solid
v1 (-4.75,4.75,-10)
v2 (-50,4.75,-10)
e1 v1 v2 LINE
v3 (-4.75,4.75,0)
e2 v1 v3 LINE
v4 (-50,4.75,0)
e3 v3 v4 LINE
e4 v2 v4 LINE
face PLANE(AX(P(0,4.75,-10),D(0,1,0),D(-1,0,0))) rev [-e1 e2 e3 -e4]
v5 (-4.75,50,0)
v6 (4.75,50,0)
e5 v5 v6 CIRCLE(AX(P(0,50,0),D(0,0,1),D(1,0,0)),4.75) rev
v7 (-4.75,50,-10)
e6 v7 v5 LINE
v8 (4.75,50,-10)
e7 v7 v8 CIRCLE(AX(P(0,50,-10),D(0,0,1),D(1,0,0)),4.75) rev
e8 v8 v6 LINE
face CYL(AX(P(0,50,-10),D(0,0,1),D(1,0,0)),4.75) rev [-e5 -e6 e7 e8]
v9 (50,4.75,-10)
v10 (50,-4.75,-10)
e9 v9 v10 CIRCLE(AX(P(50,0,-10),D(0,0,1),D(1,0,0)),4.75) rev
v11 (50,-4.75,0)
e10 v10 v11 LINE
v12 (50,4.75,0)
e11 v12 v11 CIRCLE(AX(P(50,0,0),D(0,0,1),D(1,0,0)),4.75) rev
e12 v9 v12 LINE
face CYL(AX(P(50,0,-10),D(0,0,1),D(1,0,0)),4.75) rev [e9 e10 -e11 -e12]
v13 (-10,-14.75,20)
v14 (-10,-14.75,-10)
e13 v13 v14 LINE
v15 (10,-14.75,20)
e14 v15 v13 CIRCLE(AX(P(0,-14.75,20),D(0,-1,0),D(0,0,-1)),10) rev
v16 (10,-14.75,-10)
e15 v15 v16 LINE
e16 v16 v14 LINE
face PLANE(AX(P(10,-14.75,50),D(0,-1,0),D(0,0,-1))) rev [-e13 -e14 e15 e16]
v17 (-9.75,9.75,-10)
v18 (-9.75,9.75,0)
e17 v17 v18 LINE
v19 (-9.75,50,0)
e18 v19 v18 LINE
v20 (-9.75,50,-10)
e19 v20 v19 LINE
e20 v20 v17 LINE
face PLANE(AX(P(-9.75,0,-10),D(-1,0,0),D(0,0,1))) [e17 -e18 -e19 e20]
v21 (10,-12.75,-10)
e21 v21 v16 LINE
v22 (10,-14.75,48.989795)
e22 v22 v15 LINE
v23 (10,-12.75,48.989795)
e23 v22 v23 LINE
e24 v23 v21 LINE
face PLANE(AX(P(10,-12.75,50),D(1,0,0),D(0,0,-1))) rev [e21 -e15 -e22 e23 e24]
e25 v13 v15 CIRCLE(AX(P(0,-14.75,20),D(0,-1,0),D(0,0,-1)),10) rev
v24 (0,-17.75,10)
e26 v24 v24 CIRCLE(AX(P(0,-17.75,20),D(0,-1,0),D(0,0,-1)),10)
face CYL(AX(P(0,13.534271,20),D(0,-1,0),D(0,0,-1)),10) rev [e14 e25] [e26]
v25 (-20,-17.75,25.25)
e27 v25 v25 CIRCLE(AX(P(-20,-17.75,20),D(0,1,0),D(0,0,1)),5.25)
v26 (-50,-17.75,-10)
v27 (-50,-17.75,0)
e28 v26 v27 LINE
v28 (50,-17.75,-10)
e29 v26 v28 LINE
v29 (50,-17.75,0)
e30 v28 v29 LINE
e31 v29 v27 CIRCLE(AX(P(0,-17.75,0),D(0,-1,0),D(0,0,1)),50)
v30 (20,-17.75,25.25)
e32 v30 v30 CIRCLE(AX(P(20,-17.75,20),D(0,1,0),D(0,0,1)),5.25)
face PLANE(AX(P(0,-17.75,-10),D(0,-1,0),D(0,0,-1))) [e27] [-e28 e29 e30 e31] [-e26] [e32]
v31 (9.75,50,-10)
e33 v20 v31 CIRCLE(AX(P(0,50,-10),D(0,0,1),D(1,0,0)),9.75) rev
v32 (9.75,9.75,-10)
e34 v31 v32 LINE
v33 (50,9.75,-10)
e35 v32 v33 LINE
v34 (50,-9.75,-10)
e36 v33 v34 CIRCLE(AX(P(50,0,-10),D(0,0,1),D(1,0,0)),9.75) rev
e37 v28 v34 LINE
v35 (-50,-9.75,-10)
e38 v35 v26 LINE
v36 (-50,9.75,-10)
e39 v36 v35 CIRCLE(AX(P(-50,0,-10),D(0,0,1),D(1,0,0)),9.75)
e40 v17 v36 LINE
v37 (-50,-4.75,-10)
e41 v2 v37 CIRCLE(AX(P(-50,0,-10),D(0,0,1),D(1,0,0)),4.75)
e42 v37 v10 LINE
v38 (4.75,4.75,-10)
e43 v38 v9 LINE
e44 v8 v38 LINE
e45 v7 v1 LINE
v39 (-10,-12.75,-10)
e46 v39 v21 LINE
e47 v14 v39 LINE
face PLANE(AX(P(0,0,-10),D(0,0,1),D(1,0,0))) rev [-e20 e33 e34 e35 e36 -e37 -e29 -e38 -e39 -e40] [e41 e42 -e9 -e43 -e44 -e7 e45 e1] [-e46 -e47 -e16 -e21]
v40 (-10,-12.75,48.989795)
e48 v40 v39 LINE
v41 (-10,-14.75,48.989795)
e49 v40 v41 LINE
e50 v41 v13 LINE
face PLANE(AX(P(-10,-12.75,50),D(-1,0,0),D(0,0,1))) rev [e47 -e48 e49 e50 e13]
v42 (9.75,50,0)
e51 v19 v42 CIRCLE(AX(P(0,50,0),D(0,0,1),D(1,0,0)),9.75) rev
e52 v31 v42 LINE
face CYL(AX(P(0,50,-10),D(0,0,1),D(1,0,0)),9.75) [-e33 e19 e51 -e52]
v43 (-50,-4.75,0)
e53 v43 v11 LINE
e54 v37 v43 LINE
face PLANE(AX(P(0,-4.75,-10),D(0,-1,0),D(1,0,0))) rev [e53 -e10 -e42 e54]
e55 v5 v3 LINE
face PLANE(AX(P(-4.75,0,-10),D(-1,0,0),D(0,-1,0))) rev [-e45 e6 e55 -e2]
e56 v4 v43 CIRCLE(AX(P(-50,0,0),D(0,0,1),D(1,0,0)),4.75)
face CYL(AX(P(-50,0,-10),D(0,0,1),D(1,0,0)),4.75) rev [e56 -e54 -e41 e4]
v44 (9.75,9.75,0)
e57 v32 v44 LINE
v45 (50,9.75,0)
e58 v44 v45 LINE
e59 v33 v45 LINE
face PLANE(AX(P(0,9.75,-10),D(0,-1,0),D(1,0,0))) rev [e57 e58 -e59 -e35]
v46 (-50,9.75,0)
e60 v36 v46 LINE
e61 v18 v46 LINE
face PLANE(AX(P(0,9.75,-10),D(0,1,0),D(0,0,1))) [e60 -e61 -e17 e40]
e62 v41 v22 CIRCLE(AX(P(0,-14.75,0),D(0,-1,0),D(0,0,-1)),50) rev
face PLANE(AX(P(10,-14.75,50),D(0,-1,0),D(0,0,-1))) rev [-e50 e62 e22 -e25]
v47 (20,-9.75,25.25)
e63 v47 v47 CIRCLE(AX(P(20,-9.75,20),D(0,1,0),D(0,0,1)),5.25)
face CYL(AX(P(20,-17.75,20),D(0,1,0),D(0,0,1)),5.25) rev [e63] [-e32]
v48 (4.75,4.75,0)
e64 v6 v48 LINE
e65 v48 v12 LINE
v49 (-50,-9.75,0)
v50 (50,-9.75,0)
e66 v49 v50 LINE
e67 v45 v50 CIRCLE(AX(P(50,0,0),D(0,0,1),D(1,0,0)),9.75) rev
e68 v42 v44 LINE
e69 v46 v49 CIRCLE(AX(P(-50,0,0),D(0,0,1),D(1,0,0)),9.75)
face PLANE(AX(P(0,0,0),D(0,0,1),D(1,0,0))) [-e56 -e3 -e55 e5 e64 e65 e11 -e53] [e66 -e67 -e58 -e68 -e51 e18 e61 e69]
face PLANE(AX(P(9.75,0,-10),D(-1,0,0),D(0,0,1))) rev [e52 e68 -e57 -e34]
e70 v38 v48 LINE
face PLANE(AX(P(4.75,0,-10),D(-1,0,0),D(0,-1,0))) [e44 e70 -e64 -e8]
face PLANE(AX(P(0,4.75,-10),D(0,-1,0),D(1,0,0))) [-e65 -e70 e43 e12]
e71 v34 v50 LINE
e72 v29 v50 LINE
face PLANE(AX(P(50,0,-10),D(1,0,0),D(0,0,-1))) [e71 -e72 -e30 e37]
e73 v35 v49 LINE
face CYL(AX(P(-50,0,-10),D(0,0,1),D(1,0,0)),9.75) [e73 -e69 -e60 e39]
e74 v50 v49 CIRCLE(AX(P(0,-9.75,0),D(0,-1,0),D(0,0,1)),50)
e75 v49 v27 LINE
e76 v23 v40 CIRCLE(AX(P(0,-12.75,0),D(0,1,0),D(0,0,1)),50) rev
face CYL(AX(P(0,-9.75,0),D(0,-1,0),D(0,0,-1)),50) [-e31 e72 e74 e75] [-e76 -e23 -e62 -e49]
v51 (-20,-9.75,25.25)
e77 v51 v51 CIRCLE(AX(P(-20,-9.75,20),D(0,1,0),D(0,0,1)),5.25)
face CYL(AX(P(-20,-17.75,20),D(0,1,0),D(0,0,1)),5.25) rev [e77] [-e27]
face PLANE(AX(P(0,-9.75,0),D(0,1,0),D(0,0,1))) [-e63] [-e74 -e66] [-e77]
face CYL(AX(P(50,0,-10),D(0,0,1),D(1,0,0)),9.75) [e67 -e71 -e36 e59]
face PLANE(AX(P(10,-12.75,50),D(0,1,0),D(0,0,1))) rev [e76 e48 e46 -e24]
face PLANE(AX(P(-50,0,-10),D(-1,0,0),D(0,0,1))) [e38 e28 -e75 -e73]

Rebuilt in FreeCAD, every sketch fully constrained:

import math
import FreeCAD as App
import Part
import Sketcher
from FreeCAD import Vector

doc = App.newDocument("Part")
body = doc.addObject("PartDesign::Body", "Body")

# Sketch on XY plane
sketch1 = doc.addObject("Sketcher::SketchObject", "Sketch")
body.addObject(sketch1)
sketch1.AttachmentSupport = (doc.XY_Plane, [""])
sketch1.MapMode = "FlatFace"
sketch1.addGeometry(Part.ArcOfCircle(Part.Circle(Vector(0, 50, 0), Vector(0, 0, 1), 9.8), math.radians(0), math.radians(180)), False)
sketch1.addGeometry(Part.LineSegment(Vector(-9.8, 50, 0), Vector(-9.8, 9.8, 0)), False)
sketch1.addGeometry(Part.LineSegment(Vector(-9.8, 9.8, 0), Vector(-50, 9.8, 0)), False)
sketch1.addGeometry(Part.ArcOfCircle(Part.Circle(Vector(-50, 0, 0), Vector(0, 0, 1), 9.8), math.radians(90), math.radians(270)), False)
sketch1.addGeometry(Part.LineSegment(Vector(-50, -9.8, 0), Vector(-50, -17.8, 0)), False)
sketch1.addGeometry(Part.LineSegment(Vector(-50, -17.8, 0), Vector(50, -17.8, 0)), False)
sketch1.addGeometry(Part.LineSegment(Vector(50, -17.8, 0), Vector(50, -9.8, 0)), False)
sketch1.addGeometry(Part.ArcOfCircle(Part.Circle(Vector(50, 0, 0), Vector(0, 0, 1), 9.8), math.radians(-90), math.radians(90)), False)
sketch1.addGeometry(Part.LineSegment(Vector(50, 9.8, 0), Vector(9.8, 9.8, 0)), False)
sketch1.addGeometry(Part.LineSegment(Vector(9.8, 9.8, 0), Vector(9.8, 50, 0)), False)
sketch1.addGeometry(Part.LineSegment(Vector(4.8, 4.8, 0), Vector(50, 4.8, 0)), False)
sketch1.addGeometry(Part.ArcOfCircle(Part.Circle(Vector(50, 0, 0), Vector(0, 0, 1), 4.8), math.radians(-90), math.radians(90)), False)
sketch1.addGeometry(Part.LineSegment(Vector(50, -4.8, 0), Vector(-50, -4.8, 0)), False)
sketch1.addGeometry(Part.ArcOfCircle(Part.Circle(Vector(-50, 0, 0), Vector(0, 0, 1), 4.8), math.radians(90), math.radians(270)), False)
sketch1.addGeometry(Part.LineSegment(Vector(-50, 4.8, 0), Vector(-4.8, 4.8, 0)), False)
sketch1.addGeometry(Part.LineSegment(Vector(-4.8, 4.8, 0), Vector(-4.8, 50, 0)), False)
sketch1.addGeometry(Part.ArcOfCircle(Part.Circle(Vector(0, 50, 0), Vector(0, 0, 1), 4.8), math.radians(0), math.radians(180)), False)
sketch1.addGeometry(Part.LineSegment(Vector(4.8, 50, 0), Vector(4.8, 4.8, 0)), False)
sketch1.addConstraint(Sketcher.Constraint("Tangent", 0, 2, 1, 1))
sketch1.addConstraint(Sketcher.Constraint("Coincident", 1, 2, 2, 1))
sketch1.addConstraint(Sketcher.Constraint("Tangent", 2, 2, 3, 1))
sketch1.addConstraint(Sketcher.Constraint("Coincident", 3, 2, 4, 1))
sketch1.addConstraint(Sketcher.Constraint("Coincident", 4, 2, 5, 1))
sketch1.addConstraint(Sketcher.Constraint("Coincident", 5, 2, 6, 1))
sketch1.addConstraint(Sketcher.Constraint("Coincident", 6, 2, 7, 1))
sketch1.addConstraint(Sketcher.Constraint("Tangent", 7, 2, 8, 1))
sketch1.addConstraint(Sketcher.Constraint("Coincident", 8, 2, 9, 1))
sketch1.addConstraint(Sketcher.Constraint("Tangent", 9, 2, 0, 1))
sketch1.addConstraint(Sketcher.Constraint("Tangent", 10, 2, 11, 2))
sketch1.addConstraint(Sketcher.Constraint("Tangent", 11, 1, 12, 1))
sketch1.addConstraint(Sketcher.Constraint("Tangent", 12, 2, 13, 2))
sketch1.addConstraint(Sketcher.Constraint("Tangent", 13, 1, 14, 1))
sketch1.addConstraint(Sketcher.Constraint("Coincident", 14, 2, 15, 1))
sketch1.addConstraint(Sketcher.Constraint("Tangent", 15, 2, 16, 2))
sketch1.addConstraint(Sketcher.Constraint("Tangent", 16, 1, 17, 1))
sketch1.addConstraint(Sketcher.Constraint("Coincident", 17, 2, 10, 1))
sketch1.addConstraint(Sketcher.Constraint("Vertical", 1))
sketch1.addConstraint(Sketcher.Constraint("Horizontal", 2))
sketch1.addConstraint(Sketcher.Constraint("Vertical", 4))
sketch1.addConstraint(Sketcher.Constraint("Horizontal", 5))
sketch1.addConstraint(Sketcher.Constraint("Vertical", 6))
sketch1.addConstraint(Sketcher.Constraint("Horizontal", 8))
sketch1.addConstraint(Sketcher.Constraint("Vertical", 9))
sketch1.addConstraint(Sketcher.Constraint("Horizontal", 10))
sketch1.addConstraint(Sketcher.Constraint("Horizontal", 12))
sketch1.addConstraint(Sketcher.Constraint("Horizontal", 14))
sketch1.addConstraint(Sketcher.Constraint("Vertical", 15))
sketch1.addConstraint(Sketcher.Constraint("Vertical", 17))
sketch1.addConstraint(Sketcher.Constraint("Coincident", 11, 3, 7, 3))
sketch1.addConstraint(Sketcher.Constraint("Coincident", 13, 3, 3, 3))
sketch1.addConstraint(Sketcher.Constraint("Coincident", 16, 3, 0, 3))
sketch1.addConstraint(Sketcher.Constraint("Equal", 0, 3))
sketch1.addConstraint(Sketcher.Constraint("Equal", 3, 7))
sketch1.addConstraint(Sketcher.Constraint("Equal", 11, 13))
sketch1.addConstraint(Sketcher.Constraint("Equal", 13, 16))
sketch1.addConstraint(Sketcher.Constraint("Symmetric", 3, 3, 7, 3, -1, 1))
sketch1.addConstraint(Sketcher.Constraint("PointOnObject", 0, 3, -2))
sketch1.addConstraint(Sketcher.Constraint("Vertical", 2, 2, 3, 2))
sketch1.addConstraint(Sketcher.Constraint("Vertical", 11, 3, 5, 2))
sketch1.addConstraint(Sketcher.Constraint("Equal", 8, 1))
sketch1.addConstraint(Sketcher.Constraint("DistanceX", 5, 1, 5, 2, 100.0))
sketch1.addConstraint(Sketcher.Constraint("DistanceY", 4, 2, 4, 1, 8.0))
sketch1.addConstraint(Sketcher.Constraint("Radius", 0, 9.75))
sketch1.addConstraint(Sketcher.Constraint("Radius", 11, 4.75))
pad1 = doc.addObject("PartDesign::Pad", "Pad")
body.addObject(pad1)
pad1.Profile = sketch1
pad1.Length = 10
pad1.Reversed = True

# Sketch on XZ plane
sketch2 = doc.addObject("Sketcher::SketchObject", "Sketch001")
body.addObject(sketch2)
sketch2.AttachmentSupport = (doc.XZ_Plane, [""])
sketch2.MapMode = "FlatFace"
sketch2.AttachmentOffset = App.Placement(Vector(0, 0, 17.75), App.Rotation())
sketch2.addGeometry(Part.LineSegment(Vector(-50, 0, 0), Vector(50, 0, 0)), False)
sketch2.addGeometry(Part.ArcOfCircle(Part.Circle(Vector(0, 0, 0), Vector(0, 0, 1), 50), math.radians(0), math.radians(180)), False)
sketch2.addConstraint(Sketcher.Constraint("Coincident", 0, 1, 1, 2))
sketch2.addConstraint(Sketcher.Constraint("Coincident", 1, 1, 0, 2))
sketch2.addConstraint(Sketcher.Constraint("Horizontal", 0))
sketch2.addConstraint(Sketcher.Constraint("Coincident", 1, 3, -1, 1))
sketch2.addConstraint(Sketcher.Constraint("PointOnObject", 0, 1, -1))
sketch2.addConstraint(Sketcher.Constraint("Radius", 1, 50.0))
pad2 = doc.addObject("PartDesign::Pad", "Pad001")
body.addObject(pad2)
pad2.Profile = sketch2
pad2.Length = 8
pad2.Reversed = True

# Sketch on XZ plane
sketch3 = doc.addObject("Sketcher::SketchObject", "Sketch002")
body.addObject(sketch3)
sketch3.AttachmentSupport = (doc.XZ_Plane, [""])
sketch3.MapMode = "FlatFace"
sketch3.AttachmentOffset = App.Placement(Vector(0, 0, 9.75), App.Rotation())
sketch3.addGeometry(Part.Circle(Vector(20, 20, 0), Vector(0, 0, 1), 5), False)
sketch3.addGeometry(Part.Circle(Vector(-20, 20, 0), Vector(0, 0, 1), 5), False)
sketch3.addConstraint(Sketcher.Constraint("Equal", 0, 1))
sketch3.addConstraint(Sketcher.Constraint("Symmetric", 0, 3, 1, 3, -2))
sketch3.addConstraint(Sketcher.Constraint("Diameter", 0, 10.5))
sketch3.addConstraint(Sketcher.Constraint("DistanceX", -1, 1, 0, 3, 20.0))
sketch3.addConstraint(Sketcher.Constraint("DistanceY", -1, 1, 0, 3, 20.0))
pocket1 = doc.addObject("PartDesign::Pocket", "Pocket")
body.addObject(pocket1)
pocket1.Profile = sketch3
pocket1.Type = "ThroughAll"
pocket1.Reversed = True

# Sketch on XY plane
sketch4 = doc.addObject("Sketcher::SketchObject", "Sketch003")
body.addObject(sketch4)
sketch4.AttachmentSupport = (doc.XY_Plane, [""])
sketch4.MapMode = "FlatFace"
sketch4.AttachmentOffset = App.Placement(Vector(0, 0, -10), App.Rotation())
sketch4.addGeometry(Part.LineSegment(Vector(10, -12.8, 0), Vector(10, -14.8, 0)), False)
sketch4.addGeometry(Part.LineSegment(Vector(10, -14.8, 0), Vector(-10, -14.8, 0)), False)
sketch4.addGeometry(Part.LineSegment(Vector(-10, -14.8, 0), Vector(-10, -12.8, 0)), False)
sketch4.addGeometry(Part.LineSegment(Vector(-10, -12.8, 0), Vector(10, -12.8, 0)), False)
sketch4.addConstraint(Sketcher.Constraint("Coincident", 0, 2, 1, 1))
sketch4.addConstraint(Sketcher.Constraint("Coincident", 1, 2, 2, 1))
sketch4.addConstraint(Sketcher.Constraint("Coincident", 2, 2, 3, 1))
sketch4.addConstraint(Sketcher.Constraint("Coincident", 3, 2, 0, 1))
sketch4.addConstraint(Sketcher.Constraint("Vertical", 0))
sketch4.addConstraint(Sketcher.Constraint("Horizontal", 1))
sketch4.addConstraint(Sketcher.Constraint("Vertical", 2))
sketch4.addConstraint(Sketcher.Constraint("Horizontal", 3))
sketch4.addConstraint(Sketcher.Constraint("DistanceX", 1, 2, 1, 1, 20.0))
sketch4.addConstraint(Sketcher.Constraint("DistanceY", 0, 2, 0, 1, 2.0))
sketch4.addConstraint(Sketcher.Constraint("DistanceX", -1, 1, 0, 2, 10.0))
sketch4.addConstraint(Sketcher.Constraint("DistanceY", 0, 2, -1, 1, 14.75))
pocket2 = doc.addObject("PartDesign::Pocket", "Pocket001")
body.addObject(pocket2)
pocket2.Profile = sketch4
pocket2.Type = "ThroughAll"
pocket2.Reversed = True

# Sketch on XZ plane
sketch5 = doc.addObject("Sketcher::SketchObject", "Sketch004")
body.addObject(sketch5)
sketch5.AttachmentSupport = (doc.XZ_Plane, [""])
sketch5.MapMode = "FlatFace"
sketch5.AttachmentOffset = App.Placement(Vector(0, 0, 17.75), App.Rotation())
sketch5.addGeometry(Part.Circle(Vector(0, 20, 0), Vector(0, 0, 1), 10), False)
sketch5.addConstraint(Sketcher.Constraint("PointOnObject", 0, 3, -2))
sketch5.addConstraint(Sketcher.Constraint("Diameter", 0, 20.0))
sketch5.addConstraint(Sketcher.Constraint("DistanceY", -1, 1, 0, 3, 20.0))
pocket3 = doc.addObject("PartDesign::Pocket", "Pocket002")
body.addObject(pocket3)
pocket3.Profile = sketch5
pocket3.Length = 3

doc.recompute()
